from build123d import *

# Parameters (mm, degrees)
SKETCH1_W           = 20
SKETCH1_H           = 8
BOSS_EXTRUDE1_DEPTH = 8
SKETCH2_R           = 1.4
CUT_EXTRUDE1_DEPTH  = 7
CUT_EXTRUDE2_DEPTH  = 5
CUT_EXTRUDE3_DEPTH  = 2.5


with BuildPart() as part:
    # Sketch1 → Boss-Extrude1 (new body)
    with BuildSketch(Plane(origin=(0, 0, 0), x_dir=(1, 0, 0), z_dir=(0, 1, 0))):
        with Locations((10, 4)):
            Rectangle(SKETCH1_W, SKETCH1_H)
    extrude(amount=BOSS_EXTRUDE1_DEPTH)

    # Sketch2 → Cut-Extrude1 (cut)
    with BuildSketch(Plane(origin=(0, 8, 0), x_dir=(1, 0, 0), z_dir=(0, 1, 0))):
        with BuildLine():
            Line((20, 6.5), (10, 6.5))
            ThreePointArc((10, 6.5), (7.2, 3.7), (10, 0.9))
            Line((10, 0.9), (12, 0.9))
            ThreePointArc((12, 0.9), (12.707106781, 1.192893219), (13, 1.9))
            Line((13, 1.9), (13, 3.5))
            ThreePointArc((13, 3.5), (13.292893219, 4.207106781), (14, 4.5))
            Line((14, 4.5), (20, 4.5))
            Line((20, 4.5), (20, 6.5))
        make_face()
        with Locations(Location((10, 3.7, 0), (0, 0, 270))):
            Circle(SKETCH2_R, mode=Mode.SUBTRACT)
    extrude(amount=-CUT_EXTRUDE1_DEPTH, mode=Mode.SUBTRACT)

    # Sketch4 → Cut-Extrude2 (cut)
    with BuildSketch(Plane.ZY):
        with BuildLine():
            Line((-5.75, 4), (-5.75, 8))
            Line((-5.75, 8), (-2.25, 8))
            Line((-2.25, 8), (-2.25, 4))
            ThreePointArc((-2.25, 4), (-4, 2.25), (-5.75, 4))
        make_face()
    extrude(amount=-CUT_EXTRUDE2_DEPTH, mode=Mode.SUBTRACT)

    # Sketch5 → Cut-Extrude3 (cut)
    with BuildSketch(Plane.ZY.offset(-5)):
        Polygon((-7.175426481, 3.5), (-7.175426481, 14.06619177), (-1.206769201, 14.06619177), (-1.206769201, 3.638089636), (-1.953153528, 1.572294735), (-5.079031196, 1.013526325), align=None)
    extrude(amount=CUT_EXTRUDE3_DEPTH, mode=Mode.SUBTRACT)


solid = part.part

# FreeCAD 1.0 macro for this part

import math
import FreeCAD as App
import Part
import Sketcher
Q = App.Units.Quantity


def add_polygon(sketch, points):
    """Adds a closed chain of lines whose ends are joined by coincident constraints."""
    first, n = sketch.GeometryCount, len(points)
    for a, b in zip(points, points[1:] + points[:1]):
        sketch.addGeometry(Part.LineSegment(App.Vector(*a, 0), App.Vector(*b, 0)), False)
    for i in range(n):
        sketch.addConstraint(Sketcher.Constraint("Coincident", first + i, 2, first + (i + 1) % n, 1))

doc = App.newDocument("Part")
body = doc.addObject("PartDesign::Body", "Body")

# Sketch on XZ plane
sketch1 = body.newObject("Sketcher::SketchObject", "Sketch")
sketch1.AttachmentSupport = (doc.getObject("XZ_Plane"), [""])
sketch1.MapMode = "FlatFace"
add_polygon(sketch1, [(0, -8), (0, 0), (20, 0), (20, -8)])  # lines 0-3
sketch1.addConstraint([
    Sketcher.Constraint("Vertical", 0),
    Sketcher.Constraint("Horizontal", 1),
    Sketcher.Constraint("Vertical", 2),
    Sketcher.Constraint("Horizontal", 3),
    Sketcher.Constraint("Coincident", 0, 2, -1, 1),
    Sketcher.Constraint("DistanceX", 1, 1, 1, 2, Q("20 mm")),
    Sketcher.Constraint("DistanceY", 0, 1, 0, 2, Q("8 mm")),
])
pad1 = body.newObject("PartDesign::Pad", "Pad")
pad1.Profile = sketch1
pad1.Length = 8
pad1.Reversed = True

# Sketch on XZ plane
sketch2 = body.newObject("Sketcher::SketchObject", "Sketch001")
sketch2.AttachmentSupport = (doc.getObject("XZ_Plane"), [""])
sketch2.MapMode = "FlatFace"
sketch2.AttachmentOffset = App.Placement(App.Vector(0, 0, -8), App.Rotation())
sketch2.addGeometry([
    Part.LineSegment(App.Vector(20, -6.5, 0), App.Vector(10, -6.5, 0)),  # 0
    Part.ArcOfCircle(Part.Circle(App.Vector(10, -3.7, 0), App.Vector(0, 0, 1), 2.8), math.radians(90), math.radians(270)),  # 1
    Part.LineSegment(App.Vector(10, -0.9, 0), App.Vector(12, -0.9, 0)),  # 2
    Part.ArcOfCircle(Part.Circle(App.Vector(12, -1.9, 0), App.Vector(0, 0, 1), 1), math.radians(0), math.radians(90)),  # 3
    Part.LineSegment(App.Vector(13, -1.9, 0), App.Vector(13, -3.5, 0)),  # 4
    Part.ArcOfCircle(Part.Circle(App.Vector(14, -3.5, 0), App.Vector(0, 0, 1), 1), math.radians(-180), math.radians(-90)),  # 5
    Part.LineSegment(App.Vector(14, -4.5, 0), App.Vector(20, -4.5, 0)),  # 6
    Part.LineSegment(App.Vector(20, -4.5, 0), App.Vector(20, -6.5, 0)),  # 7
    Part.Circle(App.Vector(10, -3.7, 0), App.Vector(0, 0, 1), 1.4),  # 8
], False)
sketch2.addConstraint([
    Sketcher.Constraint("Tangent", 0, 2, 1, 2),
    Sketcher.Constraint("Tangent", 1, 1, 2, 1),
    Sketcher.Constraint("Tangent", 2, 2, 3, 2),
    Sketcher.Constraint("Tangent", 3, 1, 4, 1),
    Sketcher.Constraint("Tangent", 4, 2, 5, 1),
    Sketcher.Constraint("Tangent", 5, 2, 6, 1),
    Sketcher.Constraint("Coincident", 6, 2, 7, 1),
    Sketcher.Constraint("Coincident", 7, 2, 0, 1),
    Sketcher.Constraint("Horizontal", 0),
    Sketcher.Constraint("Horizontal", 2),
    Sketcher.Constraint("Vertical", 4),
    Sketcher.Constraint("Horizontal", 6),
    Sketcher.Constraint("Vertical", 7),
    Sketcher.Constraint("Coincident", 8, 3, 1, 3),
    Sketcher.Constraint("Equal", 3, 5),
    Sketcher.Constraint("Equal", 2, 7),
    Sketcher.Constraint("Radius", 3, Q("1 mm")),
    Sketcher.Constraint("Diameter", 8, Q("2.8 mm")),
    Sketcher.Constraint("Radius", 1, Q("2.8 mm")),
    Sketcher.Constraint("DistanceX", 0, 2, 0, 1, Q("10 mm")),
    Sketcher.Constraint("DistanceX", 2, 1, 2, 2, Q("2 mm")),
    Sketcher.Constraint("DistanceX", -1, 1, 1, 3, Q("10 mm")),
    Sketcher.Constraint("DistanceY", 1, 3, -1, 1, Q("3.7 mm")),
])
pocket1 = body.newObject("PartDesign::Pocket", "Pocket")
pocket1.Profile = sketch2
pocket1.Length = 7
pocket1.Reversed = True

# Sketch on YZ plane
sketch3 = body.newObject("Sketcher::SketchObject", "Sketch002")
sketch3.AttachmentSupport = (doc.getObject("YZ_Plane"), [""])
sketch3.MapMode = "FlatFace"
sketch3.addGeometry([
    Part.LineSegment(App.Vector(8, -5.8, 0), App.Vector(4, -5.8, 0)),
    Part.ArcOfCircle(Part.Circle(App.Vector(4, -4, 0), App.Vector(0, 0, 1), 1.8), math.radians(90), math.radians(270)),
    Part.LineSegment(App.Vector(4, -2.2, 0), App.Vector(8, -2.2, 0)),
    Part.LineSegment(App.Vector(8, -2.2, 0), App.Vector(8, -5.8, 0)),
], False)
sketch3.addConstraint([
    Sketcher.Constraint("Tangent", 0, 2, 1, 2),
    Sketcher.Constraint("Tangent", 1, 1, 2, 1),
    Sketcher.Constraint("Coincident", 2, 2, 3, 1),
    Sketcher.Constraint("Coincident", 3, 2, 0, 1),
    Sketcher.Constraint("Horizontal", 0),
    Sketcher.Constraint("Horizontal", 2),
    Sketcher.Constraint("Vertical", 3),
    Sketcher.Constraint("DistanceX", 0, 2, 0, 1, Q("4 mm")),
    Sketcher.Constraint("Radius", 1, Q("1.75 mm")),
    Sketcher.Constraint("DistanceX", -1, 1, 1, 3, Q("4 mm")),
    Sketcher.Constraint("DistanceY", 1, 3, -1, 1, Q("4 mm")),
])
pocket2 = body.newObject("PartDesign::Pocket", "Pocket001")
pocket2.Profile = sketch3
pocket2.Length = 5
pocket2.Reversed = True

# Sketch on YZ plane
sketch4 = body.newObject("Sketcher::SketchObject", "Sketch003")
sketch4.AttachmentSupport = (doc.getObject("YZ_Plane"), [""])
sketch4.MapMode = "FlatFace"
sketch4.AttachmentOffset = App.Placement(App.Vector(0, 0, 5), App.Rotation())
add_polygon(sketch4, [(14.1, -7.2), (3.5, -7.2), (1, -5.1), (1.6, -2), (3.6, -1.2), (14.1, -1.2)])  # lines 0-5
sketch4.addConstraint([
    Sketcher.Constraint("Horizontal", 0),
    Sketcher.Constraint("Horizontal", 4),
    Sketcher.Constraint("Vertical", 5),
    Sketcher.Constraint("DistanceX", -1, 1, 0, 2, Q("3.5 mm")),
    Sketcher.Constraint("DistanceX", 0, 2, 0, 1, Q("10.566192 mm")),
    Sketcher.Constraint("DistanceX", 4, 1, 4, 2, Q("10.428102 mm")),
    Sketcher.Constraint("DistanceY", 5, 2, 5, 1, Q("5.968657 mm")),
    Sketcher.Constraint("DistanceY", 1, 2, -1, 1, Q("5.079031 mm")),
    Sketcher.Constraint("DistanceY", 3, 2, -1, 1, Q("1.206769 mm")),
    Sketcher.Constraint("DistanceX", 1, 2, 2, 2, Q("0.558768 mm")),
    Sketcher.Constraint("Distance", 1, Q("3.252295 mm")),
    Sketcher.Constraint("Distance", 2, Q("3.175426 mm")),
])
pocket3 = body.newObject("PartDesign::Pocket", "Pocket002")
pocket3.Profile = sketch4
pocket3.Length = 2.5

doc.recompute()
